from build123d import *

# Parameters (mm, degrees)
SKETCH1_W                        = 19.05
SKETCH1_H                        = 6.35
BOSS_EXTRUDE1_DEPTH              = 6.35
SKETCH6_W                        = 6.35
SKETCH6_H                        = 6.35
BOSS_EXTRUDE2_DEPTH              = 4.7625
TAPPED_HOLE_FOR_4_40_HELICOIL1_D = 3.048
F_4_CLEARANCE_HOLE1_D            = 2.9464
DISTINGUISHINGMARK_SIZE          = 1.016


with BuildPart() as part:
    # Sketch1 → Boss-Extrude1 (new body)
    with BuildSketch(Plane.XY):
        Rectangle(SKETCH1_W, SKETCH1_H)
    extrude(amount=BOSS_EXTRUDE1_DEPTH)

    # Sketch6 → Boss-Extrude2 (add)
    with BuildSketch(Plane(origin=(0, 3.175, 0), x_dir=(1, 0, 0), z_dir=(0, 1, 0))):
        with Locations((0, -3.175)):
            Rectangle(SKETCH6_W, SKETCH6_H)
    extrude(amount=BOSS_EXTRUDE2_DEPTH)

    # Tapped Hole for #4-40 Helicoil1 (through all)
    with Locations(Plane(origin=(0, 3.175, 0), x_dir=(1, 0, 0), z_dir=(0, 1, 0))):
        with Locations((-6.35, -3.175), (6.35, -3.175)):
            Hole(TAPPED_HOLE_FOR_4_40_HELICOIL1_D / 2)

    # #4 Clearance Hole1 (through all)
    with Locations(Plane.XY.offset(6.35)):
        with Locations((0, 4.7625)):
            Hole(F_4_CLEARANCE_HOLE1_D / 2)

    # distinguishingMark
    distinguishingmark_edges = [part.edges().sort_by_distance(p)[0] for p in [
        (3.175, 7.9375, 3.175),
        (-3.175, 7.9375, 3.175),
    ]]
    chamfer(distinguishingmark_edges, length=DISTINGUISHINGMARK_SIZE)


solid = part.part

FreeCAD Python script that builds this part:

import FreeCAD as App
import Part
import Sketcher
Q = App.Units.Quantity


def edges_at(feature, points):
    """Names of the edges that pass closest to the given points."""
    edges = feature.Shape.Edges
    near = lambda p: min(range(len(edges)), key=lambda i: edges[i].distToShape(Part.Vertex(*p))[0])
    return sorted({f"Edge{near(p) + 1}" for p in points})

doc = App.newDocument("Part")
body = doc.addObject("PartDesign::Body", "Body")

# Sketch on XY plane
sketch1 = body.newObject("Sketcher::SketchObject", "Sketch")
sketch1.AttachmentSupport = (doc.getObject("XY_Plane"), [""])
sketch1.MapMode = "FlatFace"
sketch1.addGeometry([
    Part.LineSegment(App.Vector(-10, 3, 0), App.Vector(-10, -3, 0)),
    Part.LineSegment(App.Vector(-10, -3, 0), App.Vector(10, -3, 0)),
    Part.LineSegment(App.Vector(10, -3, 0), App.Vector(10, 3, 0)),
    Part.LineSegment(App.Vector(10, 3, 0), App.Vector(-10, 3, 0)),
], False)
sketch1.addConstraint([
    Sketcher.Constraint("Coincident", 0, 2, 1, 1),
    Sketcher.Constraint("Coincident", 1, 2, 2, 1),
    Sketcher.Constraint("Coincident", 2, 2, 3, 1),
    Sketcher.Constraint("Coincident", 3, 2, 0, 1),
    Sketcher.Constraint("Vertical", 0),
    Sketcher.Constraint("Horizontal", 1),
    Sketcher.Constraint("Vertical", 2),
    Sketcher.Constraint("Horizontal", 3),
    Sketcher.Constraint("Symmetric", 0, 2, 2, 2, -1, 1),
    Sketcher.Constraint("DistanceX", 1, 1, 1, 2, Q("0.75 in")),
    Sketcher.Constraint("DistanceY", 0, 2, 0, 1, Q("0.25 in")),
])
pad1 = body.newObject("PartDesign::Pad", "Pad")
pad1.Profile = sketch1
pad1.Length = Q("0.25 in")

# Sketch on XZ plane
sketch2 = body.newObject("Sketcher::SketchObject", "Sketch001")
sketch2.AttachmentSupport = (doc.getObject("XZ_Plane"), [""])
sketch2.MapMode = "FlatFace"
sketch2.AttachmentOffset = App.Placement(App.Vector(0, 0, -0.125 * 25.4), App.Rotation())
sketch2.addGeometry([
    Part.LineSegment(App.Vector(-3, 0, 0), App.Vector(-3, 6, 0)),
    Part.LineSegment(App.Vector(-3, 6, 0), App.Vector(3, 6, 0)),
    Part.LineSegment(App.Vector(3, 6, 0), App.Vector(3, 0, 0)),
    Part.LineSegment(App.Vector(3, 0, 0), App.Vector(-3, 0, 0)),
], False)
sketch2.addConstraint([
    Sketcher.Constraint("Coincident", 0, 2, 1, 1),
    Sketcher.Constraint("Coincident", 1, 2, 2, 1),
    Sketcher.Constraint("Coincident", 2, 2, 3, 1),
    Sketcher.Constraint("Coincident", 3, 2, 0, 1),
    Sketcher.Constraint("Vertical", 0),
    Sketcher.Constraint("Horizontal", 1),
    Sketcher.Constraint("Vertical", 2),
    Sketcher.Constraint("Horizontal", 3),
    Sketcher.Constraint("Symmetric", 2, 2, 3, 2, -1, 1),
    Sketcher.Constraint("Equal", 3, 0),
    Sketcher.Constraint("DistanceX", 1, 1, 1, 2, Q("0.25 in")),
])
pad2 = body.newObject("PartDesign::Pad", "Pad001")
pad2.Profile = sketch2
pad2.Length = Q("0.1875 in")
pad2.Reversed = True

# Sketch on XZ plane
sketch3 = body.newObject("Sketcher::SketchObject", "Sketch002")
sketch3.AttachmentSupport = (doc.getObject("XZ_Plane"), [""])
sketch3.MapMode = "FlatFace"
sketch3.AttachmentOffset = App.Placement(App.Vector(0, 0, -0.125 * 25.4), App.Rotation())
sketch3.addGeometry([
    Part.Circle(App.Vector(-6.3, 3.2, 0), App.Vector(0, 0, 1), 1.5),
    Part.Circle(App.Vector(6.3, 3.2, 0), App.Vector(0, 0, 1), 1.5),
], False)
sketch3.addConstraint([
    Sketcher.Constraint("Equal", 0, 1),
    Sketcher.Constraint("Symmetric", 0, 3, 1, 3, -2),
    Sketcher.Constraint("Diameter", 0, Q("0.12 in")),
    Sketcher.Constraint("DistanceX", 0, 3, 1, 3, Q("0.5 in")),
    Sketcher.Constraint("DistanceY", -1, 1, 0, 3, Q("0.125 in")),
])
doc.recompute()
hole = body.newObject("PartDesign::Hole", "Hole")
hole.Profile = sketch3
hole.ThreadType = "None"
hole.Diameter = Q("0.12 in")
hole.DepthType = "ThroughAll"
hole.Reversed = True

# Sketch on XY plane
sketch4 = body.newObject("Sketcher::SketchObject", "Sketch003")
sketch4.AttachmentSupport = (doc.getObject("XY_Plane"), [""])
sketch4.MapMode = "FlatFace"
sketch4.AttachmentOffset = App.Placement(App.Vector(0, 0, 0.25 * 25.4), App.Rotation())
sketch4.addGeometry(Part.Circle(App.Vector(0, 4.8, 0), App.Vector(0, 0, 1), 1.5), False)
sketch4.addConstraint([
    Sketcher.Constraint("PointOnObject", 0, 3, -2),
    Sketcher.Constraint("Diameter", 0, Q("0.116 in")),
    Sketcher.Constraint("DistanceY", -1, 1, 0, 3, Q("0.1875 in")),
])
doc.recompute()
hole2 = body.newObject("PartDesign::Hole", "Hole001")
hole2.Profile = sketch4
hole2.ThreadType = "None"
hole2.Diameter = Q("0.116 in")
hole2.DepthType = "ThroughAll"
doc.recompute()

chamfer = body.newObject("PartDesign::Chamfer", "Chamfer")
chamfer.Base = (hole2, edges_at(hole2, [(3.175, 7.938, 3.175), (-3.175, 7.938, 3.175)]))
chamfer.Size = Q("0.04 in")

doc.recompute()
